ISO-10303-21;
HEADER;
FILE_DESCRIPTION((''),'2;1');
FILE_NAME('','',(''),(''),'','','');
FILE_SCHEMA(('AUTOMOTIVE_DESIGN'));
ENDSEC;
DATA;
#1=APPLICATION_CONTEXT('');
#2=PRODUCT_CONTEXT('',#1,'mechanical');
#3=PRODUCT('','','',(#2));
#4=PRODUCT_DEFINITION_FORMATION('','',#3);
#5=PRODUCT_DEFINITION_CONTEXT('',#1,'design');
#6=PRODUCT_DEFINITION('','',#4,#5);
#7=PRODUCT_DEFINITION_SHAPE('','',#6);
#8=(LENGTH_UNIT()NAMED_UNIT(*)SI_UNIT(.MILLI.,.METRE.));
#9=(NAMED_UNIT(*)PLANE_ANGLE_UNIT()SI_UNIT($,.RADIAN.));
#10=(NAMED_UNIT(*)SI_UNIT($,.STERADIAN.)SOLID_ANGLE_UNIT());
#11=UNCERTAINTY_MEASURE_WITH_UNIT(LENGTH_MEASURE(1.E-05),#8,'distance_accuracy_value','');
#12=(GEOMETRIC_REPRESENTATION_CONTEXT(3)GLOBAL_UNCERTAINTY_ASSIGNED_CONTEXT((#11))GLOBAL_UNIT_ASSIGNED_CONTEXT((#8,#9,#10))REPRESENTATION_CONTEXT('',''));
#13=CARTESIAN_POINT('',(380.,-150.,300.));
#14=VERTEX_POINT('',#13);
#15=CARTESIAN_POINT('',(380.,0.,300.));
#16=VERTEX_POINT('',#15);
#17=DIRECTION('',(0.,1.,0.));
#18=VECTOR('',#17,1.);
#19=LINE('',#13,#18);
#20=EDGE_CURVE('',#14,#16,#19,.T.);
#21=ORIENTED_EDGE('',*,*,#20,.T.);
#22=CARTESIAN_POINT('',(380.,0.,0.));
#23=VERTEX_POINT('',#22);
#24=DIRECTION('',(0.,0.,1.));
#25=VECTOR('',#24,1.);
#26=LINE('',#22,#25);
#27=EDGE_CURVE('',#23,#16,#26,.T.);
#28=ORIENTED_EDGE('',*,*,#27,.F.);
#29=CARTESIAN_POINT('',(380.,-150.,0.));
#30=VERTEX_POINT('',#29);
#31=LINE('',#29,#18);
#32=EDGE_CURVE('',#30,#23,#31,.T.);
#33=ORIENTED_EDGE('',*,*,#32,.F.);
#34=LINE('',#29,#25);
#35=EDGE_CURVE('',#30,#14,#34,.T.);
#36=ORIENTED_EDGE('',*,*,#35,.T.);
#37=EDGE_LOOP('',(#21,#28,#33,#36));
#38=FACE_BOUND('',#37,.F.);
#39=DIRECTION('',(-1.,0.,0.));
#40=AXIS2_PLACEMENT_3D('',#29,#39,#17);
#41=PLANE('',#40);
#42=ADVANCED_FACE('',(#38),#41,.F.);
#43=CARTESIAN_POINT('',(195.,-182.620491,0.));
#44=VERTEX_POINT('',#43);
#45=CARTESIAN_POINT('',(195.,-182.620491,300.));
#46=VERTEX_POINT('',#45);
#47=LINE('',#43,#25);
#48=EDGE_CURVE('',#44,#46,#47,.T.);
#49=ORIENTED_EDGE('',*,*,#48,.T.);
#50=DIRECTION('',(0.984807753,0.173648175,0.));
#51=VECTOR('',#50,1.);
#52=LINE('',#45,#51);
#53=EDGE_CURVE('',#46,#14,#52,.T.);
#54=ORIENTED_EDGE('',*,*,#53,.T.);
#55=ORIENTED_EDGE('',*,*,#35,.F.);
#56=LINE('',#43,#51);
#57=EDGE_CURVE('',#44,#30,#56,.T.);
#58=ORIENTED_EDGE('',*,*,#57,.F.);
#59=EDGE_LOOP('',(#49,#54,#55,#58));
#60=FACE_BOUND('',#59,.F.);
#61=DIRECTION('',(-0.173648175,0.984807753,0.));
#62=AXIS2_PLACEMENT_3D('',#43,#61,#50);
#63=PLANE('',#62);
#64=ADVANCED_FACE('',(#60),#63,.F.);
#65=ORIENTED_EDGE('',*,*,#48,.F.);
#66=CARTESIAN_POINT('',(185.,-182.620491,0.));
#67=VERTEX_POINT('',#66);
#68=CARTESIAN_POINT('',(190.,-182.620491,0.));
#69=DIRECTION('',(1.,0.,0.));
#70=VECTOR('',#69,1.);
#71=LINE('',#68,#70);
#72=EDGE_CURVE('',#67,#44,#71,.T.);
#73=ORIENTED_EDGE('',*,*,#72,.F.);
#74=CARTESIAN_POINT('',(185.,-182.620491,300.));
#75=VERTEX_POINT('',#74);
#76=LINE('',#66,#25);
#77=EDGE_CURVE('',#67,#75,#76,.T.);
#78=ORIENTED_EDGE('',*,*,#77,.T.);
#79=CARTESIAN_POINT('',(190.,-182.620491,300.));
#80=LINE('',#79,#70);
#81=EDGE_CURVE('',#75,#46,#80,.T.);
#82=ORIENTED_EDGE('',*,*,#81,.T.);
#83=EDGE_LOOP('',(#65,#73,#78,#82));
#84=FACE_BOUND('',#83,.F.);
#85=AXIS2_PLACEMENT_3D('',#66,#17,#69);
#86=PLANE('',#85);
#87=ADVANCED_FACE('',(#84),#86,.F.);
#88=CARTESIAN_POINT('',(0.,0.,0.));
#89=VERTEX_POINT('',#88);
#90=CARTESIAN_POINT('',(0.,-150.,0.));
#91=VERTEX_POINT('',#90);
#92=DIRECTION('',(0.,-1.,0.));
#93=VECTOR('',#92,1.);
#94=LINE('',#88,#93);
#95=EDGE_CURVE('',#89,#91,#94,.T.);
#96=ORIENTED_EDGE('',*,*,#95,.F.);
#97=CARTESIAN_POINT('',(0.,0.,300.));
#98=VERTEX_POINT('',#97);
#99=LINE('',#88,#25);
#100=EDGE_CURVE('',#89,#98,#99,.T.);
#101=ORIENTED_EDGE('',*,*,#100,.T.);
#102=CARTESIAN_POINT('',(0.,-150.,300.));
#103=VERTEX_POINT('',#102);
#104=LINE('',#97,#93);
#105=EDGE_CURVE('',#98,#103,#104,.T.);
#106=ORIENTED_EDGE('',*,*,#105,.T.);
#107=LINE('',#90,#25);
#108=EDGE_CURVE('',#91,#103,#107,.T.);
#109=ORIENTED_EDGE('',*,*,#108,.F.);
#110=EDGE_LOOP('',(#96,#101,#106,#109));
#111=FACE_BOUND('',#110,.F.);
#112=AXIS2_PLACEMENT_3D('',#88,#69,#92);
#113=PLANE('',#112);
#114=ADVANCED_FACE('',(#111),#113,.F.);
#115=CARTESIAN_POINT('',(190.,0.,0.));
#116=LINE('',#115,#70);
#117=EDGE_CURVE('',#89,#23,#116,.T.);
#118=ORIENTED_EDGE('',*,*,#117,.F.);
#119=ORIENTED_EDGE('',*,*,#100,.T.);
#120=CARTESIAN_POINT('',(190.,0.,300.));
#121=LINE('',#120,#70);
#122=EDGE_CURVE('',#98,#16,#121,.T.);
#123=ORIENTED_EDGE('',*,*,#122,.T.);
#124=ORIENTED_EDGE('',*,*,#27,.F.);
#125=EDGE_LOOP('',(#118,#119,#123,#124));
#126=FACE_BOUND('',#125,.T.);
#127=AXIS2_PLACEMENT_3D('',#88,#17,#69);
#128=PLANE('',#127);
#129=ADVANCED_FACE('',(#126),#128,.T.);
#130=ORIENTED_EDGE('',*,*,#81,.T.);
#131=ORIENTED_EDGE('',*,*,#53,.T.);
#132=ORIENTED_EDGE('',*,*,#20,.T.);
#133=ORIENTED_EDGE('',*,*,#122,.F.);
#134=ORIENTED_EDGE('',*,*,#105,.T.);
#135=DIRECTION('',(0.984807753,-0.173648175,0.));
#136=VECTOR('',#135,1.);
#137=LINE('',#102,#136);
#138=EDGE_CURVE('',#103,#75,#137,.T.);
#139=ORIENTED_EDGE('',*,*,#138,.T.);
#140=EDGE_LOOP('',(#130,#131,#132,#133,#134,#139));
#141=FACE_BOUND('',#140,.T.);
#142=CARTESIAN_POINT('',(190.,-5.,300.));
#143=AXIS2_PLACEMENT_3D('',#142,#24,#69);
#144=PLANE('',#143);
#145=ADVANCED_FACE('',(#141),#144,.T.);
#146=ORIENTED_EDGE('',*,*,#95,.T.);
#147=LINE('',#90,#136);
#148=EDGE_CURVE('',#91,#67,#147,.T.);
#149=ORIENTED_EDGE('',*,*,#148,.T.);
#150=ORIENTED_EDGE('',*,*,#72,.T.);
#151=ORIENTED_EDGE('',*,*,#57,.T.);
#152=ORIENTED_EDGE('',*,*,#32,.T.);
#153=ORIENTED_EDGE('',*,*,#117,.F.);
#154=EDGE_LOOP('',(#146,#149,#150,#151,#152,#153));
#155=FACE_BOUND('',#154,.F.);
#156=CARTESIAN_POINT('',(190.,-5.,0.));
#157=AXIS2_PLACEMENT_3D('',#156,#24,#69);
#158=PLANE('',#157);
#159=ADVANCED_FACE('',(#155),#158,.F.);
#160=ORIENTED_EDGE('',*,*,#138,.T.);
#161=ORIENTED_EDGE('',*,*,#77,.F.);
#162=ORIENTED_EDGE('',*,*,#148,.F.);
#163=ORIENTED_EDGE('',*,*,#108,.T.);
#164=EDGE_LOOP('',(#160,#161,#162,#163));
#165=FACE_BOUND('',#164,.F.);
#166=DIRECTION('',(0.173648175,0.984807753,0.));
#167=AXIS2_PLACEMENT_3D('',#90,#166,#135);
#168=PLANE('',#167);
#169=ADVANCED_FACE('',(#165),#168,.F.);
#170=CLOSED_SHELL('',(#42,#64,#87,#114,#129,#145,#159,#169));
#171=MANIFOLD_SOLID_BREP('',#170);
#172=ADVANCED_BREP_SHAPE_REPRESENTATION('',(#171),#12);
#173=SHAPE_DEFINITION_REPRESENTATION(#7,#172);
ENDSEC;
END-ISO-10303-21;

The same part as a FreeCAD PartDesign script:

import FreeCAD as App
import Part
import Sketcher
Q = App.Units.Quantity


def add_polygon(sketch, points):
    """Adds a closed chain of lines whose ends are joined by coincident constraints."""
    first, n = sketch.GeometryCount, len(points)
    for a, b in zip(points, points[1:] + points[:1]):
        sketch.addGeometry(Part.LineSegment(App.Vector(*a, 0), App.Vector(*b, 0)), False)
    for i in range(n):
        sketch.addConstraint(Sketcher.Constraint("Coincident", first + i, 2, first + (i + 1) % n, 1))

doc = App.newDocument("Part")
body = doc.addObject("PartDesign::Body", "Body")

sketch1 = body.newObject("Sketcher::SketchObject", "Sketch")
sketch1.AttachmentSupport = (doc.getObject("XY_Plane"), [""])
sketch1.MapMode = "FlatFace"
add_polygon(sketch1, [(0, 0), (0, -150), (185, -183), (195, -183), (380, -150), (380, 0)])
sketch1.addConstraint(Sketcher.Constraint("Vertical", 0))
sketch1.addConstraint(Sketcher.Constraint("Horizontal", 2))
sketch1.addConstraint(Sketcher.Constraint("Vertical", 4))
sketch1.addConstraint(Sketcher.Constraint("Horizontal", 5))
sketch1.addConstraint(Sketcher.Constraint("Coincident", 5, 2, -1, 1))
sketch1.addConstraint(Sketcher.Constraint("Horizontal", 0, 2, 3, 2))
sketch1.addConstraint(Sketcher.Constraint("Equal", 1, 3))
sketch1.addConstraint(Sketcher.Constraint("DistanceX", 2, 1, 2, 2, 10.0))
sketch1.addConstraint(Sketcher.Constraint("DistanceX", 5, 2, 5, 1, 380.0))
sketch1.addConstraint(Sketcher.Constraint("DistanceY", 0, 2, 0, 1, 150.0))
sketch1.addConstraint(Sketcher.Constraint("Angle", 1, Q("-10 deg")))
pad1 = body.newObject("PartDesign::Pad", "Pad")
pad1.Profile = sketch1
pad1.Length = 300

doc.recompute()
